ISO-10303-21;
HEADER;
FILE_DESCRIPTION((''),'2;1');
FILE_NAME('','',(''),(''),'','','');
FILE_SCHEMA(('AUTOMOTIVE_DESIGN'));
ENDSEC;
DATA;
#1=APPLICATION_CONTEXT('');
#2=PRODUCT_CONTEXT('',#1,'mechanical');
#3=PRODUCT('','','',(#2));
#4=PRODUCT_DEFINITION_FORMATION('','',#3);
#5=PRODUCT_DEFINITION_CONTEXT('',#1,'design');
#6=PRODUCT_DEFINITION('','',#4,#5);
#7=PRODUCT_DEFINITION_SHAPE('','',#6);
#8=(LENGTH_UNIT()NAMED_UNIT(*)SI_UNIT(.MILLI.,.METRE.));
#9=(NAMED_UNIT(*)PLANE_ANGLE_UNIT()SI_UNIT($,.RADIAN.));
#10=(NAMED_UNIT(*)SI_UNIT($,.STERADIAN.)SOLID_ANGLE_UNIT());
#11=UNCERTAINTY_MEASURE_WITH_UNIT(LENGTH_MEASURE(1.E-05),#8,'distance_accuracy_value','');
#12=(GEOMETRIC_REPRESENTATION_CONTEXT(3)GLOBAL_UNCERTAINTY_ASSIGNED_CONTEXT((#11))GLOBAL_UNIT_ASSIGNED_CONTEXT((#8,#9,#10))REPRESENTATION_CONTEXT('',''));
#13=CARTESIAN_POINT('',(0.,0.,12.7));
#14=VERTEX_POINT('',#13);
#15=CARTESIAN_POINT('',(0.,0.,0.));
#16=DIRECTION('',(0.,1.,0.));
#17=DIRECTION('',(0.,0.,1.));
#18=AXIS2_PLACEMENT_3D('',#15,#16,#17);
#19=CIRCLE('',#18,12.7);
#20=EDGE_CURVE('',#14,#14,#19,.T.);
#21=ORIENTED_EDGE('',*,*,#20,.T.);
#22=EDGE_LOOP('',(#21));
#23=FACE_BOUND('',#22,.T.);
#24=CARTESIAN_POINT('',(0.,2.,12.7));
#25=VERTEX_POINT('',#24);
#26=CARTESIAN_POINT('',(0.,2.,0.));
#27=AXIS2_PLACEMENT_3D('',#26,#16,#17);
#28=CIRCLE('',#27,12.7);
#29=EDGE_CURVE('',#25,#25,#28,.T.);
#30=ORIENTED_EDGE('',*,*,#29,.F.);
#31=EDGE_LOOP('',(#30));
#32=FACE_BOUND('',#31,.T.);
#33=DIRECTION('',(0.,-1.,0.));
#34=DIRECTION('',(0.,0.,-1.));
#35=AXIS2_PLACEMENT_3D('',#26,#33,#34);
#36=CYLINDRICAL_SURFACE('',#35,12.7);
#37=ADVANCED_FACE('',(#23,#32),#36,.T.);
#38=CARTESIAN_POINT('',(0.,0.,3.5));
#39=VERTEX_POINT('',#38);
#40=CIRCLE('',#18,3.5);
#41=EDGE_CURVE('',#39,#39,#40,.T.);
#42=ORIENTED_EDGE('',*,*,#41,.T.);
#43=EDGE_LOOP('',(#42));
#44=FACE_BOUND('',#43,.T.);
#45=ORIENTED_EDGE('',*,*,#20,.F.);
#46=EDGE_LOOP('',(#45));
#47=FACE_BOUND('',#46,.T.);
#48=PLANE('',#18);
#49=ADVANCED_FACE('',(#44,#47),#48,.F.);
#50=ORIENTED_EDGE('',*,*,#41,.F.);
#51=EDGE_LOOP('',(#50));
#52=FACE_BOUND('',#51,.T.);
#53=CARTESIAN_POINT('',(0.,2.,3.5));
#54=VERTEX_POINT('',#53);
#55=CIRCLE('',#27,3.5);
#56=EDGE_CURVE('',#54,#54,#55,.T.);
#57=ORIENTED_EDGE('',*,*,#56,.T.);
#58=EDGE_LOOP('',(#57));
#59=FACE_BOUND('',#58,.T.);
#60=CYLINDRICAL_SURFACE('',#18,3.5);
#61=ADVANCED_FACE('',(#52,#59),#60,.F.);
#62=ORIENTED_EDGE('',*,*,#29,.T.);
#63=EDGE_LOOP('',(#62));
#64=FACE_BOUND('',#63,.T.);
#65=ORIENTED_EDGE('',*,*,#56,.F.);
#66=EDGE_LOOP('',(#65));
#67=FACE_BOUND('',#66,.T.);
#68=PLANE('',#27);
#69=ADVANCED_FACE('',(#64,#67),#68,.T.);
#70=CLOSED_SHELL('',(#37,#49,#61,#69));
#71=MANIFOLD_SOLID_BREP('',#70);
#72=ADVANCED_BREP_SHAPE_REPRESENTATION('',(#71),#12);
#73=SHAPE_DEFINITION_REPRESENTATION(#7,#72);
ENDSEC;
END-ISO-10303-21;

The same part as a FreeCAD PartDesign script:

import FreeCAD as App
import Part
import Sketcher

V = App.Vector

doc = App.newDocument("Part")
params = doc.addObject("Spreadsheet::Sheet", "Params")
for row, (alias, value) in enumerate([
    ("sketch1_diameter", "25.4 mm"),
    ("pad1_length", "2 mm"),
    ("sketch2_diameter", "7 mm"),
    ("pocket1_length", "2 mm"),
], start=1):
    params.set(f"A{row}", alias)
    params.set(f"B{row}", "=" + value)
    params.setAlias(f"B{row}", alias)

body = doc.addObject("PartDesign::Body", "Body")

sketch1 = doc.addObject("Sketcher::SketchObject", "Sketch")
body.addObject(sketch1)
sketch1.AttachmentSupport = (doc.XZ_Plane, [""])
sketch1.MapMode = "FlatFace"
sketch1.addGeometry(Part.Circle(V(0, 0, 0), V(0, 0, 1), 13), False)
sketch1.addConstraint([
    Sketcher.Constraint("Coincident", 0, 3, -1, 1),
    Sketcher.Constraint("Diameter", 0, 25.4),
])
sketch1.setExpression("Constraints[1]", "Params.sketch1_diameter")
pad1 = doc.addObject("PartDesign::Pad", "Pad")
body.addObject(pad1)
pad1.Profile = sketch1
pad1.setExpression("Length", "Params.pad1_length")
pad1.Reversed = True

sketch2 = doc.addObject("Sketcher::SketchObject", "Sketch001")
body.addObject(sketch2)
sketch2.AttachmentSupport = (doc.XZ_Plane, [""])
sketch2.MapMode = "FlatFace"
sketch2.AttachmentOffset = App.Placement(V(0, 0, -2), App.Rotation())
sketch2.addGeometry(Part.Circle(V(0, 0, 0), V(0, 0, 1), 3.5), False)
sketch2.addConstraint([
    Sketcher.Constraint("Coincident", 0, 3, -1, 1),
    Sketcher.Constraint("Diameter", 0, 7.0),
])
sketch2.setExpression("Constraints[1]", "Params.sketch2_diameter")
pocket1 = doc.addObject("PartDesign::Pocket", "Pocket")
body.addObject(pocket1)
pocket1.Profile = sketch2
pocket1.setExpression("Length", "Params.pocket1_length")
pocket1.Reversed = True

doc.recompute()
